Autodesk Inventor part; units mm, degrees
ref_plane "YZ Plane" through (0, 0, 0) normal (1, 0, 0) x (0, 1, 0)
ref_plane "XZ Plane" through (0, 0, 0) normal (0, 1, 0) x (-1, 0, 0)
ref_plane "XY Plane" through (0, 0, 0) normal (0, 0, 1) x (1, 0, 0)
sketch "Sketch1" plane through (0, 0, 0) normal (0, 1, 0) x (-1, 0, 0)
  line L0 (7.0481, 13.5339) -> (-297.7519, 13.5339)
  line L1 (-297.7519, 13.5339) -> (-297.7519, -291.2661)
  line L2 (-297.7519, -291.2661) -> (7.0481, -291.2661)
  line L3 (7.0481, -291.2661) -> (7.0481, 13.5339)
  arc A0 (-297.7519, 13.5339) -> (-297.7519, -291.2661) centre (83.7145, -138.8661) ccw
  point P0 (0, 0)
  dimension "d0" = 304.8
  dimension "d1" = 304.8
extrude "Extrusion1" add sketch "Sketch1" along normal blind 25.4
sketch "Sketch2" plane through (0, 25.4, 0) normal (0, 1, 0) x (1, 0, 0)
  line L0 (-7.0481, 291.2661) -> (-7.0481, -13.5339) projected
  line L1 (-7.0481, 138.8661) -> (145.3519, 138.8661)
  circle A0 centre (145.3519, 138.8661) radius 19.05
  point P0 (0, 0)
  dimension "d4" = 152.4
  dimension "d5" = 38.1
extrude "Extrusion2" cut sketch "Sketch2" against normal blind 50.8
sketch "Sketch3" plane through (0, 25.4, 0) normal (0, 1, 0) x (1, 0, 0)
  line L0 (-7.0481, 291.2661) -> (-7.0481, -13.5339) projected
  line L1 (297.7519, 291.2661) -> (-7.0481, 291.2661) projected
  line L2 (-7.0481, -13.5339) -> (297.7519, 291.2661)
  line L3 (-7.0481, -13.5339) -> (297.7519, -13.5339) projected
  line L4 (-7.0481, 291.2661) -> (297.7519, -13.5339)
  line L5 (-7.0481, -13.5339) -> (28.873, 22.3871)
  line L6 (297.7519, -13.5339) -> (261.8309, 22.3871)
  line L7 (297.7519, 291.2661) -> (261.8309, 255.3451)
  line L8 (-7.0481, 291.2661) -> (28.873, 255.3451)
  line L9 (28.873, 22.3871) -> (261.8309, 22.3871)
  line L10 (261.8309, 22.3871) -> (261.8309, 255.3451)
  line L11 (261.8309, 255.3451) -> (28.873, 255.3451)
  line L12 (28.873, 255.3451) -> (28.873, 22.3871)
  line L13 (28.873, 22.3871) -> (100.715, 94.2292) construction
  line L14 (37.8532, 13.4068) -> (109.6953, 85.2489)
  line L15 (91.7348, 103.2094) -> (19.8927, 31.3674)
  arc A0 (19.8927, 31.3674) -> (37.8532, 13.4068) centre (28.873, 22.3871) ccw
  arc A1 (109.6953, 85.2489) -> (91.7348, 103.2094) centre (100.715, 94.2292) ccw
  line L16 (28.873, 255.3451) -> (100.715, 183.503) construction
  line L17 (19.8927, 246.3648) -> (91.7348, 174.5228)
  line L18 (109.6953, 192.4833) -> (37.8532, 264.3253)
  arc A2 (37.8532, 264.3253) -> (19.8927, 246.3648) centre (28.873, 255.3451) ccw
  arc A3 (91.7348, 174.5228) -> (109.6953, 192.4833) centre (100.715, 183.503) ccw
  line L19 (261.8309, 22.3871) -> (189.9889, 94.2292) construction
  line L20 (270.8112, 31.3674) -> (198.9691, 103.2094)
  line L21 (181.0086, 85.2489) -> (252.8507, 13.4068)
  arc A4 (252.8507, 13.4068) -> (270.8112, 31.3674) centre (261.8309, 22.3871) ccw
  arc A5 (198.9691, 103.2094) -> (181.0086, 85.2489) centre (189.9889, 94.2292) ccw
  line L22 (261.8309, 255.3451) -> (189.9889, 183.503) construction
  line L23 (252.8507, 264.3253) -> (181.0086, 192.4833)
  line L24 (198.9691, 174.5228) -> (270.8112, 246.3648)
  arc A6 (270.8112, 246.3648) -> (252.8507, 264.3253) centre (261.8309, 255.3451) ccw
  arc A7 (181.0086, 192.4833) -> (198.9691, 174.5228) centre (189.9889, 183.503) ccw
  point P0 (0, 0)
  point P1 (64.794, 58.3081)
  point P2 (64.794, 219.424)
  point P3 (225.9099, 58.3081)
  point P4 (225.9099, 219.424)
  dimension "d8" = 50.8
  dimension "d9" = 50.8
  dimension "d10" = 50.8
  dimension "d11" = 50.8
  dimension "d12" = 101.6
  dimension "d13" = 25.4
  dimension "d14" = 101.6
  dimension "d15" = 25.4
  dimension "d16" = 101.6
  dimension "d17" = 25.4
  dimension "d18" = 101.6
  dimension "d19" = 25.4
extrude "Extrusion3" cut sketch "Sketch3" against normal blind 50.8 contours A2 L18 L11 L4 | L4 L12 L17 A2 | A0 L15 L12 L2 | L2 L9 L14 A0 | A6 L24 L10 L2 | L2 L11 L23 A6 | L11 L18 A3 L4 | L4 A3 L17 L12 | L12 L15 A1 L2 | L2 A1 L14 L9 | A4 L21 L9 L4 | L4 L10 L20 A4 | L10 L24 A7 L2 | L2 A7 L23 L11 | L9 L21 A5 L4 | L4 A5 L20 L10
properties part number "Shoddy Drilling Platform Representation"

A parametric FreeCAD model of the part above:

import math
import FreeCAD as App
import Part
import Sketcher
Q = App.Units.Quantity

doc = App.newDocument("Part")
body = doc.addObject("PartDesign::Body", "Body")

# Sketch on XZ plane
sketch1 = body.newObject("Sketcher::SketchObject", "Sketch")
sketch1.AttachmentSupport = (doc.getObject("XZ_Plane"), [""])
sketch1.MapMode = "FlatFace"
sketch1.addGeometry([
    Part.LineSegment(App.Vector(-7, -291, 0), App.Vector(-7, 14, 0)),
    Part.LineSegment(App.Vector(-7, 14, 0), App.Vector(298, 14, 0)),
    Part.ArcOfCircle(Part.Circle(App.Vector(-84, -139, 0), App.Vector(0, 0, 1), 411), math.radians(-22), math.radians(22)),
    Part.LineSegment(App.Vector(298, -291, 0), App.Vector(-7, -291, 0)),
], False)
sketch1.addConstraint([
    Sketcher.Constraint("Coincident", 0, 2, 1, 1),
    Sketcher.Constraint("Coincident", 1, 2, 2, 2),
    Sketcher.Constraint("Coincident", 2, 1, 3, 1),
    Sketcher.Constraint("Coincident", 3, 2, 0, 1),
    Sketcher.Constraint("Vertical", 0),
    Sketcher.Constraint("Horizontal", 1),
    Sketcher.Constraint("Horizontal", 3),
    Sketcher.Constraint("Vertical", 1, 2, 2, 1),
    Sketcher.Constraint("Equal", 3, 0),
    Sketcher.Constraint("DistanceX", 1, 1, 1, 2, Q("12 in")),
    Sketcher.Constraint("Radius", 2, 410.7826),
    Sketcher.Constraint("DistanceX", 2, 3, -1, 1, 83.7145),
    Sketcher.Constraint("DistanceY", 2, 3, -1, 1, 138.866),
])
pad1 = body.newObject("PartDesign::Pad", "Pad")
pad1.Profile = sketch1
pad1.Length = Q("1 in")
pad1.Reversed = True

# Sketch on XZ plane
sketch2 = body.newObject("Sketcher::SketchObject", "Sketch001")
sketch2.AttachmentSupport = (doc.getObject("XZ_Plane"), [""])
sketch2.MapMode = "FlatFace"
sketch2.AttachmentOffset = App.Placement(App.Vector(0, 0, -1 * 25.4), App.Rotation())
sketch2.addGeometry(Part.Circle(App.Vector(145, -139, 0), App.Vector(0, 0, 1), 19), False)
sketch2.addConstraint([
    Sketcher.Constraint("Diameter", 0, Q("1.5 in")),
    Sketcher.Constraint("DistanceX", -1, 1, 0, 3, 145.352),
    Sketcher.Constraint("DistanceY", 0, 3, -1, 1, 138.866),
])
pocket1 = body.newObject("PartDesign::Pocket", "Pocket")
pocket1.Profile = sketch2
pocket1.Length = Q("2 in")
pocket1.Reversed = True

# Sketch on XZ plane
sketch3 = body.newObject("Sketcher::SketchObject", "Sketch002")
sketch3.AttachmentSupport = (doc.getObject("XZ_Plane"), [""])
sketch3.MapMode = "FlatFace"
sketch3.AttachmentOffset = App.Placement(App.Vector(0, 0, -1 * 25.4), App.Rotation())
sketch3.addGeometry([
    Part.ArcOfCircle(Part.Circle(App.Vector(29, -255, 0), App.Vector(0, 0, 1), 13), math.radians(135), math.radians(315)),  # 0
    Part.LineSegment(App.Vector(20, -246, 0), App.Vector(92, -175, 0)),  # 1
    Part.ArcOfCircle(Part.Circle(App.Vector(101, -184, 0), App.Vector(0, 0, 1), 13), math.radians(-45), math.radians(135)),  # 2
    Part.LineSegment(App.Vector(110, -192, 0), App.Vector(38, -264, 0)),  # 3
    Part.ArcOfCircle(Part.Circle(App.Vector(29, -22, 0), App.Vector(0, 0, 1), 13), math.radians(45), math.radians(225)),  # 4
    Part.LineSegment(App.Vector(38, -13, 0), App.Vector(110, -85, 0)),  # 5
    Part.ArcOfCircle(Part.Circle(App.Vector(101, -94, 0), App.Vector(0, 0, 1), 13), math.radians(-135), math.radians(45)),  # 6
    Part.LineSegment(App.Vector(92, -103, 0), App.Vector(20, -31, 0)),  # 7
    Part.ArcOfCircle(Part.Circle(App.Vector(262, -255, 0), App.Vector(0, 0, 1), 13), math.radians(-135), math.radians(45)),  # 8
    Part.LineSegment(App.Vector(253, -264, 0), App.Vector(181, -192, 0)),  # 9
    Part.ArcOfCircle(Part.Circle(App.Vector(190, -184, 0), App.Vector(0, 0, 1), 13), math.radians(45), math.radians(225)),  # 10
    Part.LineSegment(App.Vector(199, -175, 0), App.Vector(271, -246, 0)),  # 11
    Part.ArcOfCircle(Part.Circle(App.Vector(262, -22, 0), App.Vector(0, 0, 1), 13), math.radians(-45), math.radians(135)),  # 12
    Part.LineSegment(App.Vector(271, -31, 0), App.Vector(199, -103, 0)),  # 13
    Part.ArcOfCircle(Part.Circle(App.Vector(190, -94, 0), App.Vector(0, 0, 1), 13), math.radians(135), math.radians(315)),  # 14
    Part.LineSegment(App.Vector(181, -85, 0), App.Vector(253, -13, 0)),  # 15
], False)
sketch3.addConstraint([
    Sketcher.Constraint("Tangent", 0, 1, 1, 1),
    Sketcher.Constraint("Tangent", 1, 2, 2, 2),
    Sketcher.Constraint("Tangent", 2, 1, 3, 1),
    Sketcher.Constraint("Tangent", 3, 2, 0, 2),
    Sketcher.Constraint("Tangent", 4, 1, 5, 1),
    Sketcher.Constraint("Tangent", 5, 2, 6, 2),
    Sketcher.Constraint("Tangent", 6, 1, 7, 1),
    Sketcher.Constraint("Tangent", 7, 2, 4, 2),
    Sketcher.Constraint("Tangent", 8, 1, 9, 1),
    Sketcher.Constraint("Tangent", 9, 2, 10, 2),
    Sketcher.Constraint("Tangent", 10, 1, 11, 1),
    Sketcher.Constraint("Tangent", 11, 2, 8, 2),
    Sketcher.Constraint("Tangent", 12, 1, 13, 1),
    Sketcher.Constraint("Tangent", 13, 2, 14, 2),
    Sketcher.Constraint("Tangent", 14, 1, 15, 1),
    Sketcher.Constraint("Tangent", 15, 2, 12, 2),
    Sketcher.Constraint("Equal", 0, 2),
    Sketcher.Constraint("Equal", 2, 4),
    Sketcher.Constraint("Equal", 4, 6),
    Sketcher.Constraint("Equal", 6, 8),
    Sketcher.Constraint("Equal", 8, 10),
    Sketcher.Constraint("Equal", 10, 12),
    Sketcher.Constraint("Equal", 12, 14),
    Sketcher.Constraint("Perpendicular", 3, 5),
    Sketcher.Constraint("Parallel", 7, 9),
    Sketcher.Constraint("Perpendicular", 11, 13),
    Sketcher.Constraint("Horizontal", 0, 3, 8, 3),
    Sketcher.Constraint("Horizontal", 2, 3, 10, 3),
    Sketcher.Constraint("Horizontal", 4, 3, 12, 3),
    Sketcher.Constraint("Horizontal", 6, 3, 14, 3),
    Sketcher.Constraint("Horizontal", 3, 2, 8, 1),
    Sketcher.Constraint("Vertical", 0, 3, 4, 3),
    Sketcher.Constraint("Vertical", 2, 3, 6, 3),
    Sketcher.Constraint("Vertical", 8, 3, 12, 3),
    Sketcher.Constraint("Radius", 0, Q("0.5 in")),
    Sketcher.Constraint("Distance", 1, Q("4 in")),
    Sketcher.Constraint("DistanceY", 6, 3, -1, 1, Q("3.7098 in")),
    Sketcher.Constraint("DistanceX", -1, 1, 8, 3, Q("10.3083 in")),
    Sketcher.Constraint("DistanceY", 0, 1, -1, 1, Q("9.6994 in")),
    Sketcher.Constraint("DistanceX", -1, 1, 1, 2, Q("3.6116 in")),
])
pocket2 = body.newObject("PartDesign::Pocket", "Pocket001")
pocket2.Profile = sketch3
pocket2.Length = Q("2 in")
pocket2.Reversed = True

doc.recompute()
